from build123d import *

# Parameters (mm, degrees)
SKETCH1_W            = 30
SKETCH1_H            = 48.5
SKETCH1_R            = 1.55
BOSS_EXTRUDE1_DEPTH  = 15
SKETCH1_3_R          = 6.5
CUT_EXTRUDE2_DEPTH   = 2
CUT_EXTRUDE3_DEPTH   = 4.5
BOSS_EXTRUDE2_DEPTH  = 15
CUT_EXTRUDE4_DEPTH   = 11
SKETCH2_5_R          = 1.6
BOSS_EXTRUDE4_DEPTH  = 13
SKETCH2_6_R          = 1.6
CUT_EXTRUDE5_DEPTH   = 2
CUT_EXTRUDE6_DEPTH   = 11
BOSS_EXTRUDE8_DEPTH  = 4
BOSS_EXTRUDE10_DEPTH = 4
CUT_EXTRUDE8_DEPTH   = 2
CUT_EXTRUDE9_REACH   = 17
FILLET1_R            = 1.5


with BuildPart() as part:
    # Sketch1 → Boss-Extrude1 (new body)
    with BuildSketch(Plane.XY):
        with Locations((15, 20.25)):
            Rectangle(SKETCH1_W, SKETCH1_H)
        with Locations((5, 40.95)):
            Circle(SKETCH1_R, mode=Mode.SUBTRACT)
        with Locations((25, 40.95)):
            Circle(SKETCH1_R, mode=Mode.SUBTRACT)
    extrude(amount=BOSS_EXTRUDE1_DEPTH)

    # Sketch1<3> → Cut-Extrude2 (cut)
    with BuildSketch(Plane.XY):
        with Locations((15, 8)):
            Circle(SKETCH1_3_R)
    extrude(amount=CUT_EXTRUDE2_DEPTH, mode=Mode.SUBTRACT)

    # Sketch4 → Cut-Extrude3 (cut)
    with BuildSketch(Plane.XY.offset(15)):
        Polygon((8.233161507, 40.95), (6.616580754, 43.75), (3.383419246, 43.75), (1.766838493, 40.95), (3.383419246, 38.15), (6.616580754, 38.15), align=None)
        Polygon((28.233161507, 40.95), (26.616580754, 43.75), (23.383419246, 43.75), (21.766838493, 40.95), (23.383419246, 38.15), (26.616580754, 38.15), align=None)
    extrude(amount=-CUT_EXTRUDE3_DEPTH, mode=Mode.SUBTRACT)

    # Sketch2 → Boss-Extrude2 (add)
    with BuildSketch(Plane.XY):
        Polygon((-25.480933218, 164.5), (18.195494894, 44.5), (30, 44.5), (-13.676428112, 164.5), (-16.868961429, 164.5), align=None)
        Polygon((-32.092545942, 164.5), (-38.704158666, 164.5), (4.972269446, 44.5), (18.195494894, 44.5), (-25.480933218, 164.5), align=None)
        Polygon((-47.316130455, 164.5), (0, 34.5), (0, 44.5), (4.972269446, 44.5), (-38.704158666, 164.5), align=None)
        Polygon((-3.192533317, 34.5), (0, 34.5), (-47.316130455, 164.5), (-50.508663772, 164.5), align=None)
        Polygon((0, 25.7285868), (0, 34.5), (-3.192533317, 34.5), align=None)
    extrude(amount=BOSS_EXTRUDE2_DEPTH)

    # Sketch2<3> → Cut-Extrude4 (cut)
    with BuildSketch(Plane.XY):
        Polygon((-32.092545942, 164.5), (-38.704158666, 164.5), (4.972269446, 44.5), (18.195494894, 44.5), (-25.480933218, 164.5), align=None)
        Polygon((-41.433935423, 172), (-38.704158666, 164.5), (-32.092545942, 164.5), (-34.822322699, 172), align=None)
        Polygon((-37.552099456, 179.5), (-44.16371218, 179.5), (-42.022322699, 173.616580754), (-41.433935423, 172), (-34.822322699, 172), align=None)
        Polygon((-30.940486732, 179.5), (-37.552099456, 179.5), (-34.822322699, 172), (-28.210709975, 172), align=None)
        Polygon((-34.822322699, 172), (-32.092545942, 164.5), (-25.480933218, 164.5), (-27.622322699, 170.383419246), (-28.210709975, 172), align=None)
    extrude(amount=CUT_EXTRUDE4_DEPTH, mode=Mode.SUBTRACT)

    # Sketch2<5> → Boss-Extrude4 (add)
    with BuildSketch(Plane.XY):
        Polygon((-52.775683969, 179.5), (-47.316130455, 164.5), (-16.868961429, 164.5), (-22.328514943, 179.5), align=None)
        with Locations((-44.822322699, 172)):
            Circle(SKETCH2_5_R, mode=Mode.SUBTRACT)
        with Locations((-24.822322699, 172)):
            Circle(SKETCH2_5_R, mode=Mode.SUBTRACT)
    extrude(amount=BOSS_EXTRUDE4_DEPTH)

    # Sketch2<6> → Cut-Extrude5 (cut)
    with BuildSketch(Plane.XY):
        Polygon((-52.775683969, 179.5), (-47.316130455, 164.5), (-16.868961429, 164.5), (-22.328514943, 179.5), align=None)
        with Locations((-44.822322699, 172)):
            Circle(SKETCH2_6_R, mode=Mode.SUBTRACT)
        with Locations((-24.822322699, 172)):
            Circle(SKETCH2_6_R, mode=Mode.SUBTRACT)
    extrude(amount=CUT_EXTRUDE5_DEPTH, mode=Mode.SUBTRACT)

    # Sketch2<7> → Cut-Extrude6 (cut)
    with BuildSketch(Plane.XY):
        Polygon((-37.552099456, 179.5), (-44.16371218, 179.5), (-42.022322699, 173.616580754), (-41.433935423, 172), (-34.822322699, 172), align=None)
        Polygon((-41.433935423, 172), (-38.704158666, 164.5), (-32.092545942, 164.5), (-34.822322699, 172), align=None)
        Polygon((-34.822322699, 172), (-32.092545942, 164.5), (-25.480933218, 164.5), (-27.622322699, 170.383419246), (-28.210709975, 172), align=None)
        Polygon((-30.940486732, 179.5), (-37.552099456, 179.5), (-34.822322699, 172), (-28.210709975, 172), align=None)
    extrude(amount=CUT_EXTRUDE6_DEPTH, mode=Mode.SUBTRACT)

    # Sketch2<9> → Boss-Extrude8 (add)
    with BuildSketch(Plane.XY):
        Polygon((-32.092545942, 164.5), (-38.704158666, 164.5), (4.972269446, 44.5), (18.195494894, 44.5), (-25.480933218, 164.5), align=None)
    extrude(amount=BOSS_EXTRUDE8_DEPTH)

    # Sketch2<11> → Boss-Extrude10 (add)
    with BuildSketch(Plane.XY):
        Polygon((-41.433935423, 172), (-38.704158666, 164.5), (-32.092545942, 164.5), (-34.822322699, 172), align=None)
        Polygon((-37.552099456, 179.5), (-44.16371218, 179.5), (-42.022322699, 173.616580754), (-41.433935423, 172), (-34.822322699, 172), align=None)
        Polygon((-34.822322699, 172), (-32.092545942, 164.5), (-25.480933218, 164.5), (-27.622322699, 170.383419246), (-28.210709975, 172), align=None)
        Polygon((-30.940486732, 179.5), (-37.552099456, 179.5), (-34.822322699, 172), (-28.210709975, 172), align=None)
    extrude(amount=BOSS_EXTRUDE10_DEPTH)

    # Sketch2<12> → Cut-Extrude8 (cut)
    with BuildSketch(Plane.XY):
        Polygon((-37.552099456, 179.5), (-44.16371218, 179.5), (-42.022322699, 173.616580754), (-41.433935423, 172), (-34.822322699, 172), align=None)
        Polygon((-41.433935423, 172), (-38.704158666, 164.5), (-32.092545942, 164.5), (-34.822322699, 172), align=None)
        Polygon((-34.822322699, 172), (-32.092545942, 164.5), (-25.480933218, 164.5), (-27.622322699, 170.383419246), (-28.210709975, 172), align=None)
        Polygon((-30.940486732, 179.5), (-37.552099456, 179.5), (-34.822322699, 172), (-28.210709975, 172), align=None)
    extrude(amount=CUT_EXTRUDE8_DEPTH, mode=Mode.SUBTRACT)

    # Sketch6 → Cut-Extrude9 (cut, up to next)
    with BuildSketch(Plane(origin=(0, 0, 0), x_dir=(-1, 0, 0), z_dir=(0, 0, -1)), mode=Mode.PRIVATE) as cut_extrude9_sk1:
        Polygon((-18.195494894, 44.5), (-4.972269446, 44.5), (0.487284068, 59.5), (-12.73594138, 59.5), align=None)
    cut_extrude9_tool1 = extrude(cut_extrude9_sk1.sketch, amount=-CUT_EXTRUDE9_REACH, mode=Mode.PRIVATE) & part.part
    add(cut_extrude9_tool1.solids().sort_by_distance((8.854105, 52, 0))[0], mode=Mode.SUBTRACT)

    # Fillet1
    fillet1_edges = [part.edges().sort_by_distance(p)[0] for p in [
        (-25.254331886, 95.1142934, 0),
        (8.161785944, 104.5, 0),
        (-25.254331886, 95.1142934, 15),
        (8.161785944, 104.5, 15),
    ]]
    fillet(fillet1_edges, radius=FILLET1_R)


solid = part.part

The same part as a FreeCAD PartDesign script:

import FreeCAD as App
import Part
import Sketcher
Q = App.Units.Quantity


def edges_at(feature, points):
    """Names of the edges that pass closest to the given points."""
    edges = feature.Shape.Edges
    near = lambda p: min(range(len(edges)), key=lambda i: edges[i].distToShape(Part.Vertex(*p))[0])
    return sorted({f"Edge{near(p) + 1}" for p in points})

doc = App.newDocument("Part")
body = doc.addObject("PartDesign::Body", "Body")

# Sketch on XY plane
sketch1 = body.newObject("Sketcher::SketchObject", "Sketch")
sketch1.AttachmentSupport = (doc.getObject("XY_Plane"), [""])
sketch1.MapMode = "FlatFace"
sketch1.addGeometry([
    Part.LineSegment(App.Vector(0, 44.5, 0), App.Vector(0, -4, 0)),  # 0
    Part.LineSegment(App.Vector(0, -4, 0), App.Vector(30, -4, 0)),  # 1
    Part.LineSegment(App.Vector(30, -4, 0), App.Vector(30, 44.5, 0)),  # 2
    Part.LineSegment(App.Vector(30, 44.5, 0), App.Vector(0, 44.5, 0)),  # 3
    Part.Circle(App.Vector(5, 41, 0), App.Vector(0, 0, 1), 1.6),  # 4
    Part.Circle(App.Vector(25, 41, 0), App.Vector(0, 0, 1), 1.6),  # 5
], False)
sketch1.addConstraint([
    Sketcher.Constraint("Coincident", 0, 2, 1, 1),
    Sketcher.Constraint("Coincident", 1, 2, 2, 1),
    Sketcher.Constraint("Coincident", 2, 2, 3, 1),
    Sketcher.Constraint("Coincident", 3, 2, 0, 1),
    Sketcher.Constraint("Vertical", 0),
    Sketcher.Constraint("Horizontal", 1),
    Sketcher.Constraint("Vertical", 2),
    Sketcher.Constraint("Horizontal", 3),
    Sketcher.Constraint("Equal", 4, 5),
    Sketcher.Constraint("PointOnObject", 0, 2, -2),
    Sketcher.Constraint("Horizontal", 4, 3, 5, 3),
    Sketcher.Constraint("Diameter", 4, Q("3.1 mm")),
    Sketcher.Constraint("DistanceX", 1, 1, 1, 2, Q("30 mm")),
    Sketcher.Constraint("DistanceY", 0, 2, 0, 1, Q("48.5 mm")),
    Sketcher.Constraint("DistanceX", -1, 1, 4, 3, Q("5 mm")),
    Sketcher.Constraint("DistanceX", -1, 1, 5, 3, Q("25 mm")),
    Sketcher.Constraint("DistanceY", 0, 2, -1, 1, Q("4 mm")),
    Sketcher.Constraint("DistanceY", -1, 1, 4, 3, Q("40.95 mm")),
])
pad1 = body.newObject("PartDesign::Pad", "Pad")
pad1.Profile = sketch1
pad1.Length = 15

# Sketch on XY plane
sketch2 = body.newObject("Sketcher::SketchObject", "Sketch001")
sketch2.AttachmentSupport = (doc.getObject("XY_Plane"), [""])
sketch2.MapMode = "FlatFace"
sketch2.addGeometry(Part.Circle(App.Vector(15, 8, 0), App.Vector(0, 0, 1), 6), False)
sketch2.addConstraint([
    Sketcher.Constraint("Diameter", 0, Q("13 mm")),
    Sketcher.Constraint("DistanceX", -1, 1, 0, 3, Q("15 mm")),
    Sketcher.Constraint("DistanceY", -1, 1, 0, 3, Q("8 mm")),
])
pocket1 = body.newObject("PartDesign::Pocket", "Pocket")
pocket1.Profile = sketch2
pocket1.Length = 2
pocket1.Reversed = True

# Sketch on XY plane
sketch3 = body.newObject("Sketcher::SketchObject", "Sketch002")
sketch3.AttachmentSupport = (doc.getObject("XY_Plane"), [""])
sketch3.MapMode = "FlatFace"
sketch3.AttachmentOffset = App.Placement(App.Vector(0, 0, 15), App.Rotation())
sketch3.addGeometry([
    Part.LineSegment(App.Vector(8.2, 41, 0), App.Vector(6.6, 43.8, 0)),  # 0
    Part.LineSegment(App.Vector(6.6, 43.8, 0), App.Vector(3.4, 43.8, 0)),  # 1
    Part.LineSegment(App.Vector(3.4, 43.8, 0), App.Vector(1.8, 41, 0)),  # 2
    Part.LineSegment(App.Vector(1.8, 41, 0), App.Vector(3.4, 38.1, 0)),  # 3
    Part.LineSegment(App.Vector(3.4, 38.1, 0), App.Vector(6.6, 38.1, 0)),  # 4
    Part.LineSegment(App.Vector(6.6, 38.1, 0), App.Vector(8.2, 41, 0)),  # 5
    Part.LineSegment(App.Vector(28.2, 41, 0), App.Vector(26.6, 43.8, 0)),  # 6
    Part.LineSegment(App.Vector(26.6, 43.8, 0), App.Vector(23.4, 43.8, 0)),  # 7
    Part.LineSegment(App.Vector(23.4, 43.8, 0), App.Vector(21.8, 41, 0)),  # 8
    Part.LineSegment(App.Vector(21.8, 41, 0), App.Vector(23.4, 38.1, 0)),  # 9
    Part.LineSegment(App.Vector(23.4, 38.1, 0), App.Vector(26.6, 38.1, 0)),  # 10
    Part.LineSegment(App.Vector(26.6, 38.1, 0), App.Vector(28.2, 41, 0)),  # 11
], False)
sketch3.addConstraint([
    Sketcher.Constraint("Coincident", 0, 2, 1, 1),
    Sketcher.Constraint("Coincident", 1, 2, 2, 1),
    Sketcher.Constraint("Coincident", 2, 2, 3, 1),
    Sketcher.Constraint("Coincident", 3, 2, 4, 1),
    Sketcher.Constraint("Coincident", 4, 2, 5, 1),
    Sketcher.Constraint("Coincident", 5, 2, 0, 1),
    Sketcher.Constraint("Coincident", 6, 2, 7, 1),
    Sketcher.Constraint("Coincident", 7, 2, 8, 1),
    Sketcher.Constraint("Coincident", 8, 2, 9, 1),
    Sketcher.Constraint("Coincident", 9, 2, 10, 1),
    Sketcher.Constraint("Coincident", 10, 2, 11, 1),
    Sketcher.Constraint("Coincident", 11, 2, 6, 1),
    Sketcher.Constraint("Horizontal", 1),
    Sketcher.Constraint("Horizontal", 4),
    Sketcher.Constraint("Horizontal", 7),
    Sketcher.Constraint("Horizontal", 10),
    Sketcher.Constraint("Parallel", 0, 3),
    Sketcher.Constraint("Parallel", 2, 5),
    Sketcher.Constraint("Parallel", 3, 6),
    Sketcher.Constraint("Parallel", 5, 8),
    Sketcher.Constraint("Parallel", 6, 9),
    Sketcher.Constraint("Parallel", 8, 11),
    Sketcher.Constraint("Horizontal", 2, 2, 5, 2),
    Sketcher.Constraint("Horizontal", 1, 2, 6, 2),
    Sketcher.Constraint("Horizontal", 5, 2, 8, 2),
    Sketcher.Constraint("Horizontal", 4, 2, 9, 2),
    Sketcher.Constraint("Horizontal", 8, 2, 11, 2),
    Sketcher.Constraint("Vertical", 1, 2, 3, 2),
    Sketcher.Constraint("Vertical", 0, 2, 4, 2),
    Sketcher.Constraint("Equal", 4, 7),
    Sketcher.Constraint("Angle", 0, Q("120 deg")),
    Sketcher.Constraint("DistanceX", 0, 2, 6, 2, Q("20 mm")),
    Sketcher.Constraint("DistanceY", 2, 2, 1, 2, Q("2.8 mm")),
    Sketcher.Constraint("DistanceY", -1, 1, 0, 2, Q("43.75 mm")),
    Sketcher.Constraint("DistanceX", 1, 2, 1, 1, Q("3.233162 mm")),
    Sketcher.Constraint("DistanceX", -1, 1, 0, 2, Q("6.616581 mm")),
])
pocket2 = body.newObject("PartDesign::Pocket", "Pocket001")
pocket2.Profile = sketch3
pocket2.Length = 4.5

# Sketch on XY plane
sketch4 = body.newObject("Sketcher::SketchObject", "Sketch003")
sketch4.AttachmentSupport = (doc.getObject("XY_Plane"), [""])
sketch4.MapMode = "FlatFace"
sketch4.addGeometry([
    Part.LineSegment(App.Vector(30, 44, 0), App.Vector(-14, 164, 0)),  # 0
    Part.LineSegment(App.Vector(-14, 164, 0), App.Vector(-51, 164, 0)),  # 1
    Part.LineSegment(App.Vector(-51, 164, 0), App.Vector(-3, 34, 0)),  # 2
    Part.LineSegment(App.Vector(-3, 34, 0), App.Vector(0, 26, 0)),  # 3
    Part.LineSegment(App.Vector(0, 26, 0), App.Vector(0, 44, 0)),  # 4
    Part.LineSegment(App.Vector(0, 44, 0), App.Vector(30, 44, 0)),  # 5
], False)
sketch4.addConstraint([
    Sketcher.Constraint("Coincident", 0, 2, 1, 1),
    Sketcher.Constraint("Coincident", 1, 2, 2, 1),
    Sketcher.Constraint("Coincident", 2, 2, 3, 1),
    Sketcher.Constraint("Coincident", 3, 2, 4, 1),
    Sketcher.Constraint("Coincident", 4, 2, 5, 1),
    Sketcher.Constraint("Coincident", 5, 2, 0, 1),
    Sketcher.Constraint("Horizontal", 1),
    Sketcher.Constraint("Vertical", 4),
    Sketcher.Constraint("Horizontal", 5),
    Sketcher.Constraint("PointOnObject", 3, 2, -2),
    Sketcher.Constraint("Parallel", 0, 2),
    Sketcher.Constraint("Parallel", 2, 3),
    Sketcher.Constraint("DistanceX", 5, 1, 5, 2, Q("30 mm")),
    Sketcher.Constraint("Angle", 0, Q("110 deg")),
    Sketcher.Constraint("DistanceY", 2, 2, 0, 2, Q("130 mm")),
    Sketcher.Constraint("DistanceY", 2, 2, 4, 2, Q("10 mm")),
    Sketcher.Constraint("DistanceY", -1, 1, 0, 2, Q("164.5 mm")),
    Sketcher.Constraint("DistanceX", 1, 2, 1, 1, Q("36.832236 mm")),
])
pad2 = body.newObject("PartDesign::Pad", "Pad001")
pad2.Profile = sketch4
pad2.Length = 15

# Sketch on XY plane
sketch5 = body.newObject("Sketcher::SketchObject", "Sketch004")
sketch5.AttachmentSupport = (doc.getObject("XY_Plane"), [""])
sketch5.MapMode = "FlatFace"
sketch5.addGeometry([
    Part.LineSegment(App.Vector(5, 44.5, 0), App.Vector(18.2, 44.5, 0)),  # 0
    Part.LineSegment(App.Vector(18.2, 44.5, 0), App.Vector(-25.5, 164.5, 0)),  # 1
    Part.LineSegment(App.Vector(-25.5, 164.5, 0), App.Vector(-27.6, 170.4, 0)),  # 2
    Part.LineSegment(App.Vector(-27.6, 170.4, 0), App.Vector(-28.2, 172, 0)),  # 3
    Part.LineSegment(App.Vector(-28.2, 172, 0), App.Vector(-30.9, 179.5, 0)),  # 4
    Part.LineSegment(App.Vector(-30.9, 179.5, 0), App.Vector(-44.2, 179.5, 0)),  # 5
    Part.LineSegment(App.Vector(-44.2, 179.5, 0), App.Vector(-42, 173.6, 0)),  # 6
    Part.LineSegment(App.Vector(-42, 173.6, 0), App.Vector(-41.4, 172, 0)),  # 7
    Part.LineSegment(App.Vector(-41.4, 172, 0), App.Vector(5, 44.5, 0)),  # 8
], False)
sketch5.addConstraint([
    Sketcher.Constraint("Coincident", 0, 2, 1, 1),
    Sketcher.Constraint("Coincident", 1, 2, 2, 1),
    Sketcher.Constraint("Coincident", 2, 2, 3, 1),
    Sketcher.Constraint("Coincident", 3, 2, 4, 1),
    Sketcher.Constraint("Coincident", 4, 2, 5, 1),
    Sketcher.Constraint("Coincident", 5, 2, 6, 1),
    Sketcher.Constraint("Coincident", 6, 2, 7, 1),
    Sketcher.Constraint("Coincident", 7, 2, 8, 1),
    Sketcher.Constraint("Coincident", 8, 2, 0, 1),
    Sketcher.Constraint("Horizontal", 0),
    Sketcher.Constraint("Horizontal", 5),
    Sketcher.Constraint("Parallel", 1, 2),
    Sketcher.Constraint("Parallel", 2, 3),
    Sketcher.Constraint("Parallel", 3, 4),
    Sketcher.Constraint("Parallel", 4, 6),
    Sketcher.Constraint("Parallel", 6, 7),
    Sketcher.Constraint("Parallel", 7, 8),
    Sketcher.Constraint("Horizontal", 3, 2, 7, 2),
    Sketcher.Constraint("Equal", 2, 6),
    Sketcher.Constraint("Equal", 3, 7),
    Sketcher.Constraint("Angle", 1, Q("110 deg")),
    Sketcher.Constraint("DistanceY", -1, 1, 3, 2, Q("172 mm")),
    Sketcher.Constraint("DistanceY", 0, 2, 1, 2, Q("120 mm")),
    Sketcher.Constraint("DistanceY", 1, 2, 4, 2, Q("15 mm")),
    Sketcher.Constraint("DistanceX", 6, 2, 2, 2, Q("14.4 mm")),
    Sketcher.Constraint("Distance", 3, Q("1.720329 mm")),
    Sketcher.Constraint("DistanceX", 3, 2, -1, 1, Q("28.21071 mm")),
])
pocket3 = body.newObject("PartDesign::Pocket", "Pocket002")
pocket3.Profile = sketch5
pocket3.Length = 11
pocket3.Reversed = True

# Sketch on XY plane
sketch6 = body.newObject("Sketcher::SketchObject", "Sketch005")
sketch6.AttachmentSupport = (doc.getObject("XY_Plane"), [""])
sketch6.MapMode = "FlatFace"
sketch6.addGeometry([
    Part.LineSegment(App.Vector(-52.8, 179.5, 0), App.Vector(-47.3, 164.5, 0)),  # 0
    Part.LineSegment(App.Vector(-47.3, 164.5, 0), App.Vector(-16.9, 164.5, 0)),  # 1
    Part.LineSegment(App.Vector(-16.9, 164.5, 0), App.Vector(-22.3, 179.5, 0)),  # 2
    Part.LineSegment(App.Vector(-22.3, 179.5, 0), App.Vector(-52.8, 179.5, 0)),  # 3
    Part.Circle(App.Vector(-44.8, 172, 0), App.Vector(0, 0, 1), 1.6),  # 4
    Part.Circle(App.Vector(-24.8, 172, 0), App.Vector(0, 0, 1), 1.6),  # 5
], False)
sketch6.addConstraint([
    Sketcher.Constraint("Coincident", 0, 2, 1, 1),
    Sketcher.Constraint("Coincident", 1, 2, 2, 1),
    Sketcher.Constraint("Coincident", 2, 2, 3, 1),
    Sketcher.Constraint("Coincident", 3, 2, 0, 1),
    Sketcher.Constraint("Horizontal", 1),
    Sketcher.Constraint("Horizontal", 3),
    Sketcher.Constraint("Equal", 4, 5),
    Sketcher.Constraint("Parallel", 0, 2),
    Sketcher.Constraint("Horizontal", 4, 3, 5, 3),
    Sketcher.Constraint("Diameter", 4, Q("3.2 mm")),
    Sketcher.Constraint("Angle", 0, Q("-70 deg")),
    Sketcher.Constraint("DistanceY", -1, 1, 4, 3, Q("172 mm")),
    Sketcher.Constraint("DistanceX", 4, 3, 5, 3, Q("20 mm")),
    Sketcher.Constraint("DistanceY", 1, 2, 2, 2, Q("15 mm")),
    Sketcher.Constraint("DistanceY", -1, 1, 0, 2, Q("164.5 mm")),
    Sketcher.Constraint("DistanceX", 1, 1, 1, 2, Q("30.447169 mm")),
    Sketcher.Constraint("DistanceX", 0, 2, -1, 1, Q("47.31613 mm")),
    Sketcher.Constraint("DistanceX", 5, 3, 1, 2, Q("7.953361 mm")),
])
pad3 = body.newObject("PartDesign::Pad", "Pad002")
pad3.Profile = sketch6
pad3.Length = 13

# Sketch on XY plane
sketch7 = body.newObject("Sketcher::SketchObject", "Sketch006")
sketch7.AttachmentSupport = (doc.getObject("XY_Plane"), [""])
sketch7.MapMode = "FlatFace"
sketch7.addGeometry([
    Part.LineSegment(App.Vector(-52.8, 179.5, 0), App.Vector(-47.3, 164.5, 0)),  # 0
    Part.LineSegment(App.Vector(-47.3, 164.5, 0), App.Vector(-16.9, 164.5, 0)),  # 1
    Part.LineSegment(App.Vector(-16.9, 164.5, 0), App.Vector(-22.3, 179.5, 0)),  # 2
    Part.LineSegment(App.Vector(-22.3, 179.5, 0), App.Vector(-52.8, 179.5, 0)),  # 3
    Part.Circle(App.Vector(-44.8, 172, 0), App.Vector(0, 0, 1), 1.6),  # 4
    Part.Circle(App.Vector(-24.8, 172, 0), App.Vector(0, 0, 1), 1.6),  # 5
], False)
sketch7.addConstraint([
    Sketcher.Constraint("Coincident", 0, 2, 1, 1),
    Sketcher.Constraint("Coincident", 1, 2, 2, 1),
    Sketcher.Constraint("Coincident", 2, 2, 3, 1),
    Sketcher.Constraint("Coincident", 3, 2, 0, 1),
    Sketcher.Constraint("Horizontal", 1),
    Sketcher.Constraint("Horizontal", 3),
    Sketcher.Constraint("Equal", 4, 5),
    Sketcher.Constraint("Parallel", 0, 2),
    Sketcher.Constraint("Horizontal", 4, 3, 5, 3),
    Sketcher.Constraint("Diameter", 4, Q("3.2 mm")),
    Sketcher.Constraint("Angle", 0, Q("-70 deg")),
    Sketcher.Constraint("DistanceY", -1, 1, 4, 3, Q("172 mm")),
    Sketcher.Constraint("DistanceX", 4, 3, 5, 3, Q("20 mm")),
    Sketcher.Constraint("DistanceY", 1, 2, 2, 2, Q("15 mm")),
    Sketcher.Constraint("DistanceY", -1, 1, 0, 2, Q("164.5 mm")),
    Sketcher.Constraint("DistanceX", 1, 1, 1, 2, Q("30.447169 mm")),
    Sketcher.Constraint("DistanceX", 0, 2, -1, 1, Q("47.31613 mm")),
    Sketcher.Constraint("DistanceX", 5, 3, 1, 2, Q("7.953361 mm")),
])
pocket4 = body.newObject("PartDesign::Pocket", "Pocket003")
pocket4.Profile = sketch7
pocket4.Length = 2
pocket4.Reversed = True

# Sketch on XY plane
sketch8 = body.newObject("Sketcher::SketchObject", "Sketch007")
sketch8.AttachmentSupport = (doc.getObject("XY_Plane"), [""])
sketch8.MapMode = "FlatFace"
sketch8.addGeometry([
    Part.LineSegment(App.Vector(-44.2, 179.5, 0), App.Vector(-42, 173.6, 0)),  # 0
    Part.LineSegment(App.Vector(-42, 173.6, 0), App.Vector(-41.4, 172, 0)),  # 1
    Part.LineSegment(App.Vector(-41.4, 172, 0), App.Vector(-38.7, 164.5, 0)),  # 2
    Part.LineSegment(App.Vector(-38.7, 164.5, 0), App.Vector(-25.5, 164.5, 0)),  # 3
    Part.LineSegment(App.Vector(-25.5, 164.5, 0), App.Vector(-27.6, 170.4, 0)),  # 4
    Part.LineSegment(App.Vector(-27.6, 170.4, 0), App.Vector(-28.2, 172, 0)),  # 5
    Part.LineSegment(App.Vector(-28.2, 172, 0), App.Vector(-30.9, 179.5, 0)),  # 6
    Part.LineSegment(App.Vector(-30.9, 179.5, 0), App.Vector(-44.2, 179.5, 0)),  # 7
], False)
sketch8.addConstraint([
    Sketcher.Constraint("Coincident", 0, 2, 1, 1),
    Sketcher.Constraint("Coincident", 1, 2, 2, 1),
    Sketcher.Constraint("Coincident", 2, 2, 3, 1),
    Sketcher.Constraint("Coincident", 3, 2, 4, 1),
    Sketcher.Constraint("Coincident", 4, 2, 5, 1),
    Sketcher.Constraint("Coincident", 5, 2, 6, 1),
    Sketcher.Constraint("Coincident", 6, 2, 7, 1),
    Sketcher.Constraint("Coincident", 7, 2, 0, 1),
    Sketcher.Constraint("Horizontal", 3),
    Sketcher.Constraint("Horizontal", 7),
    Sketcher.Constraint("Parallel", 0, 1),
    Sketcher.Constraint("Parallel", 1, 2),
    Sketcher.Constraint("Parallel", 2, 4),
    Sketcher.Constraint("Parallel", 4, 5),
    Sketcher.Constraint("Parallel", 5, 6),
    Sketcher.Constraint("Horizontal", 1, 2, 5, 2),
    Sketcher.Constraint("Equal", 0, 4),
    Sketcher.Constraint("Equal", 1, 5),
    Sketcher.Constraint("Angle", 0, Q("-70 deg")),
    Sketcher.Constraint("DistanceY", -1, 1, 1, 2, Q("172 mm")),
    Sketcher.Constraint("DistanceY", 3, 2, 6, 2, Q("15 mm")),
    Sketcher.Constraint("DistanceX", 0, 2, 4, 2, Q("14.4 mm")),
    Sketcher.Constraint("Distance", 1, Q("1.720329 mm")),
    Sketcher.Constraint("DistanceX", 2, 2, -1, 1, Q("38.704159 mm")),
])
pocket5 = body.newObject("PartDesign::Pocket", "Pocket004")
pocket5.Profile = sketch8
pocket5.Length = 11
pocket5.Reversed = True

# Sketch on XY plane
sketch9 = body.newObject("Sketcher::SketchObject", "Sketch008")
sketch9.AttachmentSupport = (doc.getObject("XY_Plane"), [""])
sketch9.MapMode = "FlatFace"
sketch9.addGeometry([
    Part.LineSegment(App.Vector(-39, 164, 0), App.Vector(5, 44, 0)),
    Part.LineSegment(App.Vector(5, 44, 0), App.Vector(18, 44, 0)),
    Part.LineSegment(App.Vector(18, 44, 0), App.Vector(-25, 164, 0)),
    Part.LineSegment(App.Vector(-25, 164, 0), App.Vector(-39, 164, 0)),
], False)
sketch9.addConstraint([
    Sketcher.Constraint("Coincident", 0, 2, 1, 1),
    Sketcher.Constraint("Coincident", 1, 2, 2, 1),
    Sketcher.Constraint("Coincident", 2, 2, 3, 1),
    Sketcher.Constraint("Coincident", 3, 2, 0, 1),
    Sketcher.Constraint("Horizontal", 1),
    Sketcher.Constraint("Horizontal", 3),
    Sketcher.Constraint("Parallel", 0, 2),
    Sketcher.Constraint("Angle", 0, Q("-70 deg")),
    Sketcher.Constraint("DistanceY", 0, 2, 2, 2, Q("120 mm")),
    Sketcher.Constraint("DistanceY", -1, 1, 0, 2, Q("44.5 mm")),
    Sketcher.Constraint("DistanceX", 1, 1, 1, 2, Q("13.223225 mm")),
    Sketcher.Constraint("DistanceX", -1, 1, 0, 2, Q("4.972269 mm")),
])
pad4 = body.newObject("PartDesign::Pad", "Pad003")
pad4.Profile = sketch9
pad4.Length = 4

# Sketch on XY plane
sketch10 = body.newObject("Sketcher::SketchObject", "Sketch009")
sketch10.AttachmentSupport = (doc.getObject("XY_Plane"), [""])
sketch10.MapMode = "FlatFace"
sketch10.addGeometry([
    Part.LineSegment(App.Vector(-41.4, 172, 0), App.Vector(-38.7, 164.5, 0)),  # 0
    Part.LineSegment(App.Vector(-38.7, 164.5, 0), App.Vector(-25.5, 164.5, 0)),  # 1
    Part.LineSegment(App.Vector(-25.5, 164.5, 0), App.Vector(-27.6, 170.4, 0)),  # 2
    Part.LineSegment(App.Vector(-27.6, 170.4, 0), App.Vector(-28.2, 172, 0)),  # 3
    Part.LineSegment(App.Vector(-28.2, 172, 0), App.Vector(-30.9, 179.5, 0)),  # 4
    Part.LineSegment(App.Vector(-30.9, 179.5, 0), App.Vector(-44.2, 179.5, 0)),  # 5
    Part.LineSegment(App.Vector(-44.2, 179.5, 0), App.Vector(-42, 173.6, 0)),  # 6
    Part.LineSegment(App.Vector(-42, 173.6, 0), App.Vector(-41.4, 172, 0)),  # 7
], False)
sketch10.addConstraint([
    Sketcher.Constraint("Coincident", 0, 2, 1, 1),
    Sketcher.Constraint("Coincident", 1, 2, 2, 1),
    Sketcher.Constraint("Coincident", 2, 2, 3, 1),
    Sketcher.Constraint("Coincident", 3, 2, 4, 1),
    Sketcher.Constraint("Coincident", 4, 2, 5, 1),
    Sketcher.Constraint("Coincident", 5, 2, 6, 1),
    Sketcher.Constraint("Coincident", 6, 2, 7, 1),
    Sketcher.Constraint("Coincident", 7, 2, 0, 1),
    Sketcher.Constraint("Horizontal", 1),
    Sketcher.Constraint("Horizontal", 5),
    Sketcher.Constraint("Parallel", 0, 2),
    Sketcher.Constraint("Parallel", 2, 3),
    Sketcher.Constraint("Parallel", 3, 4),
    Sketcher.Constraint("Parallel", 4, 6),
    Sketcher.Constraint("Parallel", 6, 7),
    Sketcher.Constraint("Horizontal", 3, 2, 7, 2),
    Sketcher.Constraint("Equal", 0, 4),
    Sketcher.Constraint("Equal", 2, 6),
    Sketcher.Constraint("Angle", 0, Q("-70 deg")),
    Sketcher.Constraint("DistanceY", -1, 1, 3, 2, Q("172 mm")),
    Sketcher.Constraint("DistanceY", 1, 2, 4, 2, Q("15 mm")),
    Sketcher.Constraint("DistanceX", 6, 2, 2, 2, Q("14.4 mm")),
    Sketcher.Constraint("Distance", 3, Q("1.720329 mm")),
    Sketcher.Constraint("DistanceX", 0, 2, -1, 1, Q("38.704159 mm")),
])
pad5 = body.newObject("PartDesign::Pad", "Pad004")
pad5.Profile = sketch10
pad5.Length = 4

# Sketch on XY plane
sketch11 = body.newObject("Sketcher::SketchObject", "Sketch010")
sketch11.AttachmentSupport = (doc.getObject("XY_Plane"), [""])
sketch11.MapMode = "FlatFace"
sketch11.addGeometry([
    Part.LineSegment(App.Vector(-44.2, 179.5, 0), App.Vector(-42, 173.6, 0)),  # 0
    Part.LineSegment(App.Vector(-42, 173.6, 0), App.Vector(-41.4, 172, 0)),  # 1
    Part.LineSegment(App.Vector(-41.4, 172, 0), App.Vector(-38.7, 164.5, 0)),  # 2
    Part.LineSegment(App.Vector(-38.7, 164.5, 0), App.Vector(-25.5, 164.5, 0)),  # 3
    Part.LineSegment(App.Vector(-25.5, 164.5, 0), App.Vector(-27.6, 170.4, 0)),  # 4
    Part.LineSegment(App.Vector(-27.6, 170.4, 0), App.Vector(-28.2, 172, 0)),  # 5
    Part.LineSegment(App.Vector(-28.2, 172, 0), App.Vector(-30.9, 179.5, 0)),  # 6
    Part.LineSegment(App.Vector(-30.9, 179.5, 0), App.Vector(-44.2, 179.5, 0)),  # 7
], False)
sketch11.addConstraint([
    Sketcher.Constraint("Coincident", 0, 2, 1, 1),
    Sketcher.Constraint("Coincident", 1, 2, 2, 1),
    Sketcher.Constraint("Coincident", 2, 2, 3, 1),
    Sketcher.Constraint("Coincident", 3, 2, 4, 1),
    Sketcher.Constraint("Coincident", 4, 2, 5, 1),
    Sketcher.Constraint("Coincident", 5, 2, 6, 1),
    Sketcher.Constraint("Coincident", 6, 2, 7, 1),
    Sketcher.Constraint("Coincident", 7, 2, 0, 1),
    Sketcher.Constraint("Horizontal", 3),
    Sketcher.Constraint("Horizontal", 7),
    Sketcher.Constraint("Parallel", 0, 1),
    Sketcher.Constraint("Parallel", 1, 2),
    Sketcher.Constraint("Parallel", 2, 4),
    Sketcher.Constraint("Parallel", 4, 5),
    Sketcher.Constraint("Parallel", 5, 6),
    Sketcher.Constraint("Horizontal", 1, 2, 5, 2),
    Sketcher.Constraint("Equal", 0, 4),
    Sketcher.Constraint("Equal", 1, 5),
    Sketcher.Constraint("Angle", 0, Q("-70 deg")),
    Sketcher.Constraint("DistanceY", -1, 1, 1, 2, Q("172 mm")),
    Sketcher.Constraint("DistanceY", 3, 2, 6, 2, Q("15 mm")),
    Sketcher.Constraint("DistanceX", 0, 2, 4, 2, Q("14.4 mm")),
    Sketcher.Constraint("Distance", 1, Q("1.720329 mm")),
    Sketcher.Constraint("DistanceX", 2, 2, -1, 1, Q("38.704159 mm")),
])
pocket6 = body.newObject("PartDesign::Pocket", "Pocket005")
pocket6.Profile = sketch11
pocket6.Length = 2
pocket6.Reversed = True

# Sketch on XY plane
sketch12 = body.newObject("Sketcher::SketchObject", "Sketch011")
sketch12.AttachmentSupport = (doc.getObject("XY_Plane"), [""])
sketch12.MapMode = "FlatFace"
sketch12.addGeometry([
    Part.LineSegment(App.Vector(18, 44, 0), App.Vector(5, 44, 0)),
    Part.LineSegment(App.Vector(5, 44, 0), App.Vector(0, 60, 0)),
    Part.LineSegment(App.Vector(0, 60, 0), App.Vector(13, 60, 0)),
    Part.LineSegment(App.Vector(13, 60, 0), App.Vector(18, 44, 0)),
], False)
sketch12.addConstraint([
    Sketcher.Constraint("Coincident", 0, 2, 1, 1),
    Sketcher.Constraint("Coincident", 1, 2, 2, 1),
    Sketcher.Constraint("Coincident", 2, 2, 3, 1),
    Sketcher.Constraint("Coincident", 3, 2, 0, 1),
    Sketcher.Constraint("Horizontal", 0),
    Sketcher.Constraint("Horizontal", 2),
    Sketcher.Constraint("Parallel", 1, 3),
    Sketcher.Constraint("Angle", 1, Q("110 deg")),
    Sketcher.Constraint("DistanceY", 0, 2, 1, 2, Q("15 mm")),
    Sketcher.Constraint("DistanceY", -1, 1, 0, 2, Q("44.5 mm")),
    Sketcher.Constraint("DistanceX", 0, 2, 0, 1, Q("13.223225 mm")),
    Sketcher.Constraint("DistanceX", -1, 1, 0, 2, Q("4.972269 mm")),
])
pocket7 = body.newObject("PartDesign::Pocket", "Pocket006")
pocket7.Profile = sketch12
pocket7.Type = "UpToFirst"
pocket7.Reversed = True
doc.recompute()

fillet = body.newObject("PartDesign::Fillet", "Fillet")
fillet.Base = (pocket7, edges_at(pocket7, [
    (-26.851, 99.5, 0),
    (8.162, 104.5, 0),
    (-26.851, 99.5, 15),
    (8.162, 104.5, 15),
]))
fillet.Radius = 1.5

doc.recompute()
